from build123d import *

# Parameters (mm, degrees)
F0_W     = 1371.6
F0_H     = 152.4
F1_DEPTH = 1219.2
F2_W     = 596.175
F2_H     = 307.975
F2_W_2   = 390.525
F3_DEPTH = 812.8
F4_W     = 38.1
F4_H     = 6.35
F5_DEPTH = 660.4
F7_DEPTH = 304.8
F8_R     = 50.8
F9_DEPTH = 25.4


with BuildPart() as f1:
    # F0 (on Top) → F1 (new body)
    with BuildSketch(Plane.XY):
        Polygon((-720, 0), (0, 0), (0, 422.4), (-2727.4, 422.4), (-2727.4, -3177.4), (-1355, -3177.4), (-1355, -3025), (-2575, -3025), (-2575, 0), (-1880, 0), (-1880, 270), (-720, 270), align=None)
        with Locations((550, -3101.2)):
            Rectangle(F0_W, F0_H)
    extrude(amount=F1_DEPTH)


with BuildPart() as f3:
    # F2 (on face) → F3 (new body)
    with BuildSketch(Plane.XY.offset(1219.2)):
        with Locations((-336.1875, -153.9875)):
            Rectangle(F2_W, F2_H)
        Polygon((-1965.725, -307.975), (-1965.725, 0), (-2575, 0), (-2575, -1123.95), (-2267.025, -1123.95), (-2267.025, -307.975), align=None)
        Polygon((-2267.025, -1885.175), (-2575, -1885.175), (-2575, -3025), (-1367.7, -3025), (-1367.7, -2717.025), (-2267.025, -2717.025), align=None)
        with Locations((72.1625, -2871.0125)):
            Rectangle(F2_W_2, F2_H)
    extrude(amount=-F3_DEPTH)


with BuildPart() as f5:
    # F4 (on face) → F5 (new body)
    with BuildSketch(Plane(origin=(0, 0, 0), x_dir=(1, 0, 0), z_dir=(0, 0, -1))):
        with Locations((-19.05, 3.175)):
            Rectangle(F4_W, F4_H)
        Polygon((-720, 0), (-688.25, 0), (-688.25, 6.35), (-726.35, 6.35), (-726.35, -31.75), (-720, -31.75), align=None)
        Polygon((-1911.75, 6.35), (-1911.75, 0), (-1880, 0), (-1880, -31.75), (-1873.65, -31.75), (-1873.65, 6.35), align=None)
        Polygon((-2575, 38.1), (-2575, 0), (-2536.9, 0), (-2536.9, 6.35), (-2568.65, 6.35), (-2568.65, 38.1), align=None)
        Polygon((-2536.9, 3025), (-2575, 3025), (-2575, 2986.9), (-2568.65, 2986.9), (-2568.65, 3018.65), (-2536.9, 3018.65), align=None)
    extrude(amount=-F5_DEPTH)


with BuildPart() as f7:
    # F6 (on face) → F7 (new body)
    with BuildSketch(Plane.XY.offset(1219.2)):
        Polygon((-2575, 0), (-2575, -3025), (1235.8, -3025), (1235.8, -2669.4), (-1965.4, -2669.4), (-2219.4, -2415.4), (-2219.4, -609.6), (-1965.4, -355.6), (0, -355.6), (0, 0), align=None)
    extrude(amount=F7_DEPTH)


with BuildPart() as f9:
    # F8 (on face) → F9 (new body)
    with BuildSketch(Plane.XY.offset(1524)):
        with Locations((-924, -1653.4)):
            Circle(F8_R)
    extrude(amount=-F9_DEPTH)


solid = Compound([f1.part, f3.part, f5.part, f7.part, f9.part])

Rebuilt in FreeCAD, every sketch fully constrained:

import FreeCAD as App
import Part
import Sketcher
Q = App.Units.Quantity


def add_polygon(sketch, points):
    """Adds a closed chain of lines whose ends are joined by coincident constraints."""
    first, n = sketch.GeometryCount, len(points)
    for a, b in zip(points, points[1:] + points[:1]):
        sketch.addGeometry(Part.LineSegment(App.Vector(*a, 0), App.Vector(*b, 0)), False)
    for i in range(n):
        sketch.addConstraint(Sketcher.Constraint("Coincident", first + i, 2, first + (i + 1) % n, 1))

doc = App.newDocument("Part")
body = doc.addObject("PartDesign::Body", "Body")
body.AllowCompound = True

# Sketch on XY plane
sketch1 = body.newObject("Sketcher::SketchObject", "Sketch")
sketch1.AttachmentSupport = (doc.getObject("XY_Plane"), [""])
sketch1.MapMode = "FlatFace"
add_polygon(sketch1, [(-720, 0), (0, 0), (0, 422), (-2727, 422), (-2727, -3177), (-1355, -3177), (-1355, -3025), (-2575, -3025), (-2575, 0), (-1880, 0), (-1880, 270), (-720, 270)])  # lines 0-11
add_polygon(sketch1, [(-136, -3025), (-136, -3177), (1236, -3177), (1236, -3025)])  # lines 12-15
sketch1.addConstraint([
    Sketcher.Constraint("Horizontal", 0),
    Sketcher.Constraint("Vertical", 1),
    Sketcher.Constraint("Horizontal", 2),
    Sketcher.Constraint("Vertical", 3),
    Sketcher.Constraint("Horizontal", 4),
    Sketcher.Constraint("Vertical", 5),
    Sketcher.Constraint("Horizontal", 6),
    Sketcher.Constraint("Vertical", 7),
    Sketcher.Constraint("Horizontal", 8),
    Sketcher.Constraint("Vertical", 9),
    Sketcher.Constraint("Horizontal", 10),
    Sketcher.Constraint("Vertical", 11),
    Sketcher.Constraint("Vertical", 12),
    Sketcher.Constraint("Horizontal", 13),
    Sketcher.Constraint("Vertical", 14),
    Sketcher.Constraint("Horizontal", 15),
    Sketcher.Constraint("Coincident", 0, 2, -1, 1),
    Sketcher.Constraint("PointOnObject", 7, 2, -1),
    Sketcher.Constraint("Horizontal", 4, 2, 12, 2),
    Sketcher.Constraint("Horizontal", 6, 2, 14, 2),
    Sketcher.Constraint("DistanceX", 13, 1, 13, 2, Q("54 in")),
    Sketcher.Constraint("DistanceY", 5, 1, 5, 2, Q("6 in")),
    Sketcher.Constraint("DistanceX", 3, 2, 6, 2, Q("6 in")),
    Sketcher.Constraint("DistanceY", 9, 2, 2, 2, Q("6 in")),
    Sketcher.Constraint("DistanceX", 4, 2, 12, 2, Q("48 in")),
    Sketcher.Constraint("DistanceX", 11, 2, 13, 2, Q("77 in")),
    Sketcher.Constraint("DistanceX", 0, 1, 0, 2, 720.0),
    Sketcher.Constraint("DistanceX", 2, 2, 2, 1, 2727.4),
    Sketcher.Constraint("DistanceX", 8, 1, 8, 2, 695.0),
    Sketcher.Constraint("DistanceY", 1, 1, 1, 2, 422.4),
    Sketcher.Constraint("DistanceY", 3, 2, 3, 1, 3599.8),
])
pad1 = body.newObject("PartDesign::Pad", "Pad")
pad1.Profile = sketch1
pad1.Length = Q("48 in")
body2 = doc.addObject("PartDesign::Body", "Body001")
body2.AllowCompound = True

# Sketch on XY plane
sketch2 = body2.newObject("Sketcher::SketchObject", "Sketch001")
sketch2.AttachmentSupport = (doc.getObject("XY_Plane001"), [""])
sketch2.MapMode = "FlatFace"
sketch2.AttachmentOffset = App.Placement(App.Vector(0, 0, 48 * 25.4), App.Rotation())
add_polygon(sketch2, [(-634, 0), (-634, -308), (-38, -308), (-38, 0)])  # lines 0-3
add_polygon(sketch2, [(-1966, -308), (-1966, 0), (-2575, 0), (-2575, -1124), (-2267, -1124), (-2267, -308)])  # lines 4-9
add_polygon(sketch2, [(-2267, -1885), (-2575, -1885), (-2575, -3025), (-1368, -3025), (-1368, -2717), (-2267, -2717)])  # lines 10-15
add_polygon(sketch2, [(-123, -2717), (-123, -3025), (267, -3025), (267, -2717)])  # lines 16-19
sketch2.addConstraint([
    Sketcher.Constraint("Vertical", 0),
    Sketcher.Constraint("Horizontal", 1),
    Sketcher.Constraint("Vertical", 2),
    Sketcher.Constraint("Horizontal", 3),
    Sketcher.Constraint("Vertical", 4),
    Sketcher.Constraint("Horizontal", 5),
    Sketcher.Constraint("Vertical", 6),
    Sketcher.Constraint("Horizontal", 7),
    Sketcher.Constraint("Vertical", 8),
    Sketcher.Constraint("Horizontal", 9),
    Sketcher.Constraint("Horizontal", 10),
    Sketcher.Constraint("Vertical", 11),
    Sketcher.Constraint("Horizontal", 12),
    Sketcher.Constraint("Vertical", 13),
    Sketcher.Constraint("Horizontal", 14),
    Sketcher.Constraint("Vertical", 15),
    Sketcher.Constraint("Vertical", 16),
    Sketcher.Constraint("Horizontal", 17),
    Sketcher.Constraint("Vertical", 18),
    Sketcher.Constraint("Horizontal", 19),
    Sketcher.Constraint("PointOnObject", 2, 2, -1),
    Sketcher.Constraint("PointOnObject", 4, 2, -1),
    Sketcher.Constraint("Horizontal", 1, 2, 8, 2),
    Sketcher.Constraint("Horizontal", 12, 2, 16, 2),
    Sketcher.Constraint("Horizontal", 14, 2, 18, 2),
    Sketcher.Constraint("Vertical", 6, 2, 10, 2),
    Sketcher.Constraint("Vertical", 8, 2, 14, 2),
    Sketcher.Constraint("Equal", 10, 0),
    Sketcher.Constraint("Equal", 4, 13),
    Sketcher.Constraint("DistanceX", 12, 2, 16, 2, Q("49 in")),
    Sketcher.Constraint("DistanceY", 6, 2, 6, 1, Q("44.25 in")),
    Sketcher.Constraint("DistanceY", 15, 1, 15, 2, Q("32.75 in")),
    Sketcher.Constraint("DistanceX", 1, 2, -1, 1, Q("1.5 in")),
    Sketcher.Constraint("DistanceX", 7, 1, 7, 2, Q("12.125 in")),
    Sketcher.Constraint("DistanceX", 17, 1, 17, 2, Q("15.375 in")),
    Sketcher.Constraint("DistanceX", 1, 1, 1, 2, 596.175),
    Sketcher.Constraint("DistanceX", 5, 2, 5, 1, 609.275),
    Sketcher.Constraint("DistanceX", 12, 1, 12, 2, 1207.3),
    Sketcher.Constraint("DistanceX", 4, 2, -1, 1, 1965.725),
    Sketcher.Constraint("DistanceY", 10, 2, -1, 1, 1885.175),
])
pad2 = body2.newObject("PartDesign::Pad", "Pad001")
pad2.Profile = sketch2
pad2.Length = Q("32 in")
pad2.Reversed = True
body3 = doc.addObject("PartDesign::Body", "Body002")
body3.AllowCompound = True

# Sketch on XY plane
sketch3 = body3.newObject("Sketcher::SketchObject", "Sketch002")
sketch3.AttachmentSupport = (doc.getObject("XY_Plane002"), [""])
sketch3.MapMode = "FlatFace"
add_polygon(sketch3, [(-38, -6), (-38, 0), (0, 0), (0, -6)])  # lines 0-3
add_polygon(sketch3, [(-720, 0), (-688, 0), (-688, -6), (-726, -6), (-726, 32), (-720, 32)])  # lines 4-9
add_polygon(sketch3, [(-1912, -6), (-1912, 0), (-1880, 0), (-1880, 32), (-1874, 32), (-1874, -6)])  # lines 10-15
add_polygon(sketch3, [(-2575, -38), (-2575, 0), (-2537, 0), (-2537, -6), (-2569, -6), (-2569, -38)])  # lines 16-21
add_polygon(sketch3, [(-2537, -3025), (-2575, -3025), (-2575, -2987), (-2569, -2987), (-2569, -3019), (-2537, -3019)])  # lines 22-27
sketch3.addConstraint([
    Sketcher.Constraint("Vertical", 0),
    Sketcher.Constraint("Horizontal", 1),
    Sketcher.Constraint("Vertical", 2),
    Sketcher.Constraint("Horizontal", 3),
    Sketcher.Constraint("Horizontal", 4),
    Sketcher.Constraint("Vertical", 5),
    Sketcher.Constraint("Horizontal", 6),
    Sketcher.Constraint("Vertical", 7),
    Sketcher.Constraint("Horizontal", 8),
    Sketcher.Constraint("Vertical", 9),
    Sketcher.Constraint("Vertical", 10),
    Sketcher.Constraint("Horizontal", 11),
    Sketcher.Constraint("Vertical", 12),
    Sketcher.Constraint("Horizontal", 13),
    Sketcher.Constraint("Vertical", 14),
    Sketcher.Constraint("Horizontal", 15),
    Sketcher.Constraint("Vertical", 16),
    Sketcher.Constraint("Horizontal", 17),
    Sketcher.Constraint("Vertical", 18),
    Sketcher.Constraint("Horizontal", 19),
    Sketcher.Constraint("Vertical", 20),
    Sketcher.Constraint("Horizontal", 21),
    Sketcher.Constraint("Horizontal", 22),
    Sketcher.Constraint("Vertical", 23),
    Sketcher.Constraint("Horizontal", 24),
    Sketcher.Constraint("Vertical", 25),
    Sketcher.Constraint("Horizontal", 26),
    Sketcher.Constraint("Vertical", 27),
    Sketcher.Constraint("Coincident", 1, 2, -1, 1),
    Sketcher.Constraint("PointOnObject", 4, 2, -1),
    Sketcher.Constraint("PointOnObject", 10, 2, -1),
    Sketcher.Constraint("PointOnObject", 16, 2, -1),
    Sketcher.Constraint("Horizontal", 3, 2, 5, 2),
    Sketcher.Constraint("Horizontal", 8, 2, 12, 2),
    Sketcher.Constraint("Horizontal", 6, 2, 14, 2),
    Sketcher.Constraint("Horizontal", 15, 2, 18, 2),
    Sketcher.Constraint("Vertical", 21, 2, 22, 2),
    Sketcher.Constraint("Vertical", 20, 2, 24, 2),
    Sketcher.Constraint("Vertical", 18, 2, 26, 2),
    Sketcher.Constraint("Equal", 3, 6),
    Sketcher.Constraint("Equal", 4, 11),
    Sketcher.Constraint("Equal", 8, 13),
    Sketcher.Constraint("Equal", 15, 17),
    Sketcher.Constraint("Equal", 11, 19),
    Sketcher.Constraint("Equal", 24, 0),
    Sketcher.Constraint("Equal", 22, 7),
    Sketcher.Constraint("Equal", 14, 16),
    Sketcher.Constraint("Equal", 16, 23),
    Sketcher.Constraint("Equal", 20, 25),
    Sketcher.Constraint("DistanceX", 1, 1, 1, 2, Q("1.5 in")),
    Sketcher.Constraint("DistanceX", 4, 1, 4, 2, Q("1.25 in")),
    Sketcher.Constraint("DistanceX", 4, 2, -1, 1, 688.25),
    Sketcher.Constraint("DistanceX", 10, 2, -1, 1, 1911.75),
    Sketcher.Constraint("DistanceX", 16, 2, -1, 1, 2575.0),
    Sketcher.Constraint("DistanceY", 22, 2, -1, 1, 3025.0),
])
pad3 = body3.newObject("PartDesign::Pad", "Pad002")
pad3.Profile = sketch3
pad3.Length = Q("26 in")
body4 = doc.addObject("PartDesign::Body", "Body003")

# Sketch on XY plane
sketch4 = body4.newObject("Sketcher::SketchObject", "Sketch003")
sketch4.AttachmentSupport = (doc.getObject("XY_Plane003"), [""])
sketch4.MapMode = "FlatFace"
sketch4.AttachmentOffset = App.Placement(App.Vector(0, 0, 48 * 25.4), App.Rotation())
add_polygon(sketch4, [(-2575, 0), (-2575, -3025), (1236, -3025), (1236, -2669), (-1965, -2669), (-2219, -2415), (-2219, -610), (-1965, -356), (0, -356), (0, 0)])  # lines 0-9
sketch4.addConstraint([
    Sketcher.Constraint("Vertical", 0),
    Sketcher.Constraint("Horizontal", 1),
    Sketcher.Constraint("Vertical", 2),
    Sketcher.Constraint("Horizontal", 3),
    Sketcher.Constraint("Vertical", 5),
    Sketcher.Constraint("Horizontal", 7),
    Sketcher.Constraint("Vertical", 8),
    Sketcher.Constraint("Horizontal", 9),
    Sketcher.Constraint("Coincident", 8, 2, -1, 1),
    Sketcher.Constraint("Perpendicular", 4, 6),
    Sketcher.Constraint("Vertical", 3, 2, 6, 2),
    Sketcher.Constraint("Equal", 2, 8),
    Sketcher.Constraint("Equal", 4, 6),
    Sketcher.Constraint("DistanceY", 2, 1, 2, 2, Q("14 in")),
    Sketcher.Constraint("DistanceY", 5, 2, -1, 1, Q("24 in")),
    Sketcher.Constraint("DistanceX", 0, 2, 3, 2, Q("24 in")),
    Sketcher.Constraint("DistanceX", 1, 1, 1, 2, 3810.8),
    Sketcher.Constraint("DistanceX", 7, 1, 7, 2, 1965.4),
    Sketcher.Constraint("DistanceY", 0, 2, 0, 1, 3025.0),
])
pad4 = body4.newObject("PartDesign::Pad", "Pad003")
pad4.Profile = sketch4
pad4.Length = Q("12 in")
body5 = doc.addObject("PartDesign::Body", "Body004")

# Sketch on XY plane
sketch5 = body5.newObject("Sketcher::SketchObject", "Sketch004")
sketch5.AttachmentSupport = (doc.getObject("XY_Plane004"), [""])
sketch5.MapMode = "FlatFace"
sketch5.AttachmentOffset = App.Placement(App.Vector(0, 0, 60 * 25.4), App.Rotation())
sketch5.addGeometry(Part.Circle(App.Vector(-924, -1653, 0), App.Vector(0, 0, 1), 51), False)
sketch5.addConstraint([
    Sketcher.Constraint("Diameter", 0, Q("4 in")),
    Sketcher.Constraint("DistanceX", 0, 3, -1, 1, 924.0),
    Sketcher.Constraint("DistanceY", 0, 3, -1, 1, 1653.4),
])
pad5 = body5.newObject("PartDesign::Pad", "Pad004")
pad5.Profile = sketch5
pad5.Length = Q("1 in")
pad5.Reversed = True

doc.recompute()
